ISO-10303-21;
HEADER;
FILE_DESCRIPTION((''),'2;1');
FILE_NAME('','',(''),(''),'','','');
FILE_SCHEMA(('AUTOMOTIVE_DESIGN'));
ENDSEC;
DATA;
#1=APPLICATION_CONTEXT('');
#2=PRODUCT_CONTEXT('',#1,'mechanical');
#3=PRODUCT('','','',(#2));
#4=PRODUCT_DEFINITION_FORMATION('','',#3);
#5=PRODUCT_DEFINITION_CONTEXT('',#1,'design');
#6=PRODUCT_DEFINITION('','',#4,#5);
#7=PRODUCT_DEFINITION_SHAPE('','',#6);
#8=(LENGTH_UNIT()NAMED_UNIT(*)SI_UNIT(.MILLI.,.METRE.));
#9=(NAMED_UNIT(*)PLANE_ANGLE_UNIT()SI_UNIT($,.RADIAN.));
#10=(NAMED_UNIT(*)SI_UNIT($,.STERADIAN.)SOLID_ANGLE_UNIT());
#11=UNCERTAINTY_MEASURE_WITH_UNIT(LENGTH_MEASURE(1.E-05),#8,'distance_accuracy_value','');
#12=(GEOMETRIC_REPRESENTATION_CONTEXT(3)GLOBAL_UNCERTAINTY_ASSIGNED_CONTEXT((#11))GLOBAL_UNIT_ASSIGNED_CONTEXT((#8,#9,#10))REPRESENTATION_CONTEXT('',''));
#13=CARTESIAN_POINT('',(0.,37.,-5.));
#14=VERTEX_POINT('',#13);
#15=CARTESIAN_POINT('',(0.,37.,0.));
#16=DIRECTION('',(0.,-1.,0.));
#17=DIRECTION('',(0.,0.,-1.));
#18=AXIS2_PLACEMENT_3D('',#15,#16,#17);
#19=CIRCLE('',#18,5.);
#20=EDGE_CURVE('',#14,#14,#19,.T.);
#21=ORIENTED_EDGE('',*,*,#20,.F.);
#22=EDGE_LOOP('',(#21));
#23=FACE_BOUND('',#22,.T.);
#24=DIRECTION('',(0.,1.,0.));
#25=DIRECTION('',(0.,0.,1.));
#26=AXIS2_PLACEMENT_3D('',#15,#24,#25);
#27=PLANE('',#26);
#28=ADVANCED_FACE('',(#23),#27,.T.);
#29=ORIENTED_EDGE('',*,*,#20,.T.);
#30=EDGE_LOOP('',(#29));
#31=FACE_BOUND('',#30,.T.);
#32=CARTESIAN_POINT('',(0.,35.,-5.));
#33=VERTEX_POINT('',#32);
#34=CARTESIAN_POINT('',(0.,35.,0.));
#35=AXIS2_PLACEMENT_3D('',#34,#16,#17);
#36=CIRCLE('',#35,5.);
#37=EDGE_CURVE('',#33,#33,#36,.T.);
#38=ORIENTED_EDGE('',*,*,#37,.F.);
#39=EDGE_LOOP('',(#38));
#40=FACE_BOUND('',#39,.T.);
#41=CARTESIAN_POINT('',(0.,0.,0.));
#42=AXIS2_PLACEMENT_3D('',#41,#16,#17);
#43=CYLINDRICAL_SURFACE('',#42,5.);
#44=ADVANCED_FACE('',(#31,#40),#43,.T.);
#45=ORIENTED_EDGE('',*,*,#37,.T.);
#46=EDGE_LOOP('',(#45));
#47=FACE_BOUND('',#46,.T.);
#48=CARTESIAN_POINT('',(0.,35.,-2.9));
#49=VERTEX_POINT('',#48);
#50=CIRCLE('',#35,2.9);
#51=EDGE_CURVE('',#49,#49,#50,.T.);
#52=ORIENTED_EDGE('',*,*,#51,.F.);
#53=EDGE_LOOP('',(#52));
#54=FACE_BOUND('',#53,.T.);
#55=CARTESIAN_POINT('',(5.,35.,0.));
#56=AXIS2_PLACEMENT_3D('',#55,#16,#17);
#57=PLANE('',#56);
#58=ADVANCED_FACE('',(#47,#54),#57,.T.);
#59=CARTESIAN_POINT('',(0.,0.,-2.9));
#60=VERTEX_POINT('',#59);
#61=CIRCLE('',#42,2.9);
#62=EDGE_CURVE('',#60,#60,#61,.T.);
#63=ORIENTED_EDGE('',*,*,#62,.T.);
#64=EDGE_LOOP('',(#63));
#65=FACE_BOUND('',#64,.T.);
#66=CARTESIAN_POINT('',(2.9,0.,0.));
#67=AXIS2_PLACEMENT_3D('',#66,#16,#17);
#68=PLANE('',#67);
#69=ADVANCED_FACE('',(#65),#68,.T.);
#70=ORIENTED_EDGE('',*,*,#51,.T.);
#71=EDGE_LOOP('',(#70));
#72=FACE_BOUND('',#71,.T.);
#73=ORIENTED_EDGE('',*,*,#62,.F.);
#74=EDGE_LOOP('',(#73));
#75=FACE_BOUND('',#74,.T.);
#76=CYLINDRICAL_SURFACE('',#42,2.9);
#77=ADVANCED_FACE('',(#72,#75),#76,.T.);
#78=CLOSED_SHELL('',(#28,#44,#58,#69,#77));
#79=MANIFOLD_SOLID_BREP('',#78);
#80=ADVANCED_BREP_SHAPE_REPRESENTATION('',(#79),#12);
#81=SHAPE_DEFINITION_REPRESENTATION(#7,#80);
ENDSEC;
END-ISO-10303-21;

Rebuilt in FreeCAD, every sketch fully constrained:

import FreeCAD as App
import Part
import Sketcher
from FreeCAD import Vector


def add_polygon(sketch, points):
    """Adds a closed chain of lines whose ends are joined by coincident constraints."""
    first, n = sketch.GeometryCount, len(points)
    for a, b in zip(points, points[1:] + points[:1]):
        sketch.addGeometry(Part.LineSegment(App.Vector(*a, 0), App.Vector(*b, 0)), False)
    for i in range(n):
        sketch.addConstraint(Sketcher.Constraint("Coincident", first + i, 2, first + (i + 1) % n, 1))

doc = App.newDocument("Part")
body = doc.addObject("PartDesign::Body", "Body")

sketch1 = body.newObject("Sketcher::SketchObject", "Sketch")
sketch1.AttachmentSupport = (doc.getObject("XY_Plane"), [""])
sketch1.MapMode = "FlatFace"
add_polygon(sketch1, [(5, 37), (0, 37), (0, 0), (2.9, 0), (2.9, 35), (5, 35)])
sketch1.addConstraint([
    Sketcher.Constraint("Horizontal", 0),
    Sketcher.Constraint("Vertical", 1),
    Sketcher.Constraint("Horizontal", 2),
    Sketcher.Constraint("Vertical", 3),
    Sketcher.Constraint("Horizontal", 4),
    Sketcher.Constraint("Vertical", 5),
    Sketcher.Constraint("Coincident", 1, 2, -1, 1),
    Sketcher.Constraint("DistanceX", 0, 2, 0, 1, 5.0),
    Sketcher.Constraint("DistanceY", 1, 2, 1, 1, 37.0),
    Sketcher.Constraint("DistanceY", 3, 1, 3, 2, 35.0),
    Sketcher.Constraint("DistanceX", 2, 1, 2, 2, 2.9),
])
revolution = body.newObject("PartDesign::Revolution", "Revolution")
revolution.Profile = sketch1
revolution.ReferenceAxis = (sketch1, ["V_Axis"])
revolution.Angle = 360

doc.recompute()
